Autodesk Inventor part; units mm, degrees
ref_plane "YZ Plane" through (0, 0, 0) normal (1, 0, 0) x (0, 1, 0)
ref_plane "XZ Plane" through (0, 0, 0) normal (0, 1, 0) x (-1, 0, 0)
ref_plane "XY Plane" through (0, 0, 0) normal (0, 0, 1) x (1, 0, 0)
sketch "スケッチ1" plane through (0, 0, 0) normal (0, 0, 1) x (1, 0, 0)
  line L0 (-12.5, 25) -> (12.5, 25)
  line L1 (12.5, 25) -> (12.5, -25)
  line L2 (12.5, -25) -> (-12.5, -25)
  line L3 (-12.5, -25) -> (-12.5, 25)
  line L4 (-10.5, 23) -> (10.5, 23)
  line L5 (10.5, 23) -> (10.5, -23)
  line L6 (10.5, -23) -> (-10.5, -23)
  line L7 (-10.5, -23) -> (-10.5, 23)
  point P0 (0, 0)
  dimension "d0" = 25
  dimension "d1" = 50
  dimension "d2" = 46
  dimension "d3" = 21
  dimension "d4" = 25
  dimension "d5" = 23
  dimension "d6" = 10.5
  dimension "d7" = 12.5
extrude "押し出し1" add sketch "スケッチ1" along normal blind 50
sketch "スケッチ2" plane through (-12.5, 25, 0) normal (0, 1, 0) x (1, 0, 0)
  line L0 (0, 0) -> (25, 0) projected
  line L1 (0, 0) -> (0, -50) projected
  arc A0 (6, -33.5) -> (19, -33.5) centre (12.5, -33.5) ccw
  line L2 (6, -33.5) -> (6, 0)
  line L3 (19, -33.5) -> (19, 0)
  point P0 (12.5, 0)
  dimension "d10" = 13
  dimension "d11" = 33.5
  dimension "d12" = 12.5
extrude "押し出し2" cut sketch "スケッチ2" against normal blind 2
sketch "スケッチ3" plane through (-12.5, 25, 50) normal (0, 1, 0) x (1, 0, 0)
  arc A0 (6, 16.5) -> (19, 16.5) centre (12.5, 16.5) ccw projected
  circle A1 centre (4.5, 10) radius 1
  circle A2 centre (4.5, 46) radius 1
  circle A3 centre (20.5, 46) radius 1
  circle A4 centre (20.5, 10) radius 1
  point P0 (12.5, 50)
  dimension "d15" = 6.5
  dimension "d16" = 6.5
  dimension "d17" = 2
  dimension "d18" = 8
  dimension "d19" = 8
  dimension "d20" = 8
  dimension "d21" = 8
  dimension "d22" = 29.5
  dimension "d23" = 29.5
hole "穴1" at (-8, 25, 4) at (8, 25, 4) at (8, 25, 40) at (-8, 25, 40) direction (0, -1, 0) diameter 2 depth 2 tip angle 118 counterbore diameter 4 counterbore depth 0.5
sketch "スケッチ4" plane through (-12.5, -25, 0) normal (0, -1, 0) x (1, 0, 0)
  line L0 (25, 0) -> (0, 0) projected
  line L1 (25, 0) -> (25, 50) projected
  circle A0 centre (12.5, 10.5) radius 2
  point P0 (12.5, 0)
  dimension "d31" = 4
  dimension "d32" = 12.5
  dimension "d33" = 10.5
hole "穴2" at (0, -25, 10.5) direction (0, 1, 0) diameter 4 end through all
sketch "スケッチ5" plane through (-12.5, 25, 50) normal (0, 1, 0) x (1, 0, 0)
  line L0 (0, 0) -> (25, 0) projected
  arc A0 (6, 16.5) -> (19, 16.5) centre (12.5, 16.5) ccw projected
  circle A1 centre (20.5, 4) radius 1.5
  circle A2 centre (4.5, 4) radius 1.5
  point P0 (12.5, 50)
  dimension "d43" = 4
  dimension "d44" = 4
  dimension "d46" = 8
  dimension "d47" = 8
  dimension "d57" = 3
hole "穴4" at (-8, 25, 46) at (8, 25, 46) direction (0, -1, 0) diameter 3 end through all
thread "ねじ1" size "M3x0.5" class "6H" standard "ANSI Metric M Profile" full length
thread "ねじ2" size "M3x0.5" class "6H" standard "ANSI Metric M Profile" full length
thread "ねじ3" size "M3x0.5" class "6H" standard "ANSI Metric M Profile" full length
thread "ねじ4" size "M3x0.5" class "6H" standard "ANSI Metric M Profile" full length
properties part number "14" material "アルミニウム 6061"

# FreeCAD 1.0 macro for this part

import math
import FreeCAD as App
import Part
import Sketcher


def add_polygon(sketch, points):
    """Adds a closed chain of lines whose ends are joined by coincident constraints."""
    first, n = sketch.GeometryCount, len(points)
    for a, b in zip(points, points[1:] + points[:1]):
        sketch.addGeometry(Part.LineSegment(App.Vector(*a, 0), App.Vector(*b, 0)), False)
    for i in range(n):
        sketch.addConstraint(Sketcher.Constraint("Coincident", first + i, 2, first + (i + 1) % n, 1))

doc = App.newDocument("Part")
params = doc.addObject("Spreadsheet::Sheet", "Params")
for row, (alias, value) in enumerate([
    ("sketch1_width", "25 mm"),
    ("sketch1_width2", "21 mm"),
    ("sketch1_height", "50 mm"),
    ("sketch1_height2", "46 mm"),
    ("pad1_length", "50 mm"),
    ("sketch2_radius", "6.5 mm"),
    ("sketch2_height", "33.5 mm"),
    ("pocket1_length", "2 mm"),
    ("sketch3_diameter", "2 mm"),
    ("hole_diameter", "2 mm"),
    ("hole_depth", "2 mm"),
    ("hole_cbore_diameter", "4 mm"),
    ("hole_cbore_depth", "0.5 mm"),
    ("sketch4_diameter", "4 mm"),
    ("hole2_diameter", "4 mm"),
    ("sketch5_diameter", "3 mm"),
    ("hole3_diameter", "3 mm"),
], start=1):
    params.set(f"A{row}", alias)
    params.set(f"B{row}", "=" + value)
    params.setAlias(f"B{row}", alias)

body = doc.addObject("PartDesign::Body", "Body")

sketch1 = body.newObject("Sketcher::SketchObject", "Sketch")
sketch1.AttachmentSupport = (doc.getObject("XY_Plane"), [""])
sketch1.MapMode = "FlatFace"
add_polygon(sketch1, [(12, 25), (-12, 25), (-12, -25), (12, -25)])
add_polygon(sketch1, [(-10, -23), (-10, 23), (10, 23), (10, -23)])
sketch1.addConstraint(Sketcher.Constraint("Horizontal", 0))
sketch1.addConstraint(Sketcher.Constraint("Vertical", 1))
sketch1.addConstraint(Sketcher.Constraint("Horizontal", 2))
sketch1.addConstraint(Sketcher.Constraint("Vertical", 3))
sketch1.addConstraint(Sketcher.Constraint("Vertical", 4))
sketch1.addConstraint(Sketcher.Constraint("Horizontal", 5))
sketch1.addConstraint(Sketcher.Constraint("Vertical", 6))
sketch1.addConstraint(Sketcher.Constraint("Horizontal", 7))
sketch1.addConstraint(Sketcher.Constraint("Symmetric", 0, 2, 2, 2, -1, 1))
sketch1.addConstraint(Sketcher.Constraint("Symmetric", 4, 2, 6, 2, -1, 1))
sketch1.addConstraint(Sketcher.Constraint("DistanceX", 0, 2, 0, 1, 25.0))
sketch1.addConstraint(Sketcher.Constraint("DistanceX", 5, 1, 5, 2, 21.0))
sketch1.addConstraint(Sketcher.Constraint("DistanceY", 1, 2, 1, 1, 50.0))
sketch1.addConstraint(Sketcher.Constraint("DistanceY", 4, 1, 4, 2, 46.0))
sketch1.setExpression("Constraints[18]", "Params.sketch1_width")
sketch1.setExpression("Constraints[19]", "Params.sketch1_width2")
sketch1.setExpression("Constraints[20]", "Params.sketch1_height")
sketch1.setExpression("Constraints[21]", "Params.sketch1_height2")
pad1 = body.newObject("PartDesign::Pad", "Pad")
pad1.Profile = sketch1
pad1.setExpression("Length", "Params.pad1_length")

sketch2 = body.newObject("Sketcher::SketchObject", "Sketch001")
sketch2.AttachmentSupport = (doc.getObject("XZ_Plane"), [""])
sketch2.MapMode = "FlatFace"
sketch2.AttachmentOffset = App.Placement(App.Vector(0, 0, -25), App.Rotation())
sketch2.addGeometry(Part.LineSegment(App.Vector(6, 0, 0), App.Vector(-6, 0, 0)), False)
sketch2.addGeometry(Part.LineSegment(App.Vector(-6, 0, 0), App.Vector(-6, 34, 0)), False)
sketch2.addGeometry(Part.ArcOfCircle(Part.Circle(App.Vector(0, 34, 0), App.Vector(0, 0, 1), 6), math.radians(0), math.radians(180)), False)
sketch2.addGeometry(Part.LineSegment(App.Vector(6, 34, 0), App.Vector(6, 0, 0)), False)
sketch2.addConstraint(Sketcher.Constraint("Coincident", 0, 2, 1, 1))
sketch2.addConstraint(Sketcher.Constraint("Tangent", 1, 2, 2, 2))
sketch2.addConstraint(Sketcher.Constraint("Tangent", 2, 1, 3, 1))
sketch2.addConstraint(Sketcher.Constraint("Coincident", 3, 2, 0, 1))
sketch2.addConstraint(Sketcher.Constraint("Horizontal", 0))
sketch2.addConstraint(Sketcher.Constraint("Vertical", 1))
sketch2.addConstraint(Sketcher.Constraint("Vertical", 3))
sketch2.addConstraint(Sketcher.Constraint("Symmetric", 0, 2, 3, 2, -1, 1))
sketch2.addConstraint(Sketcher.Constraint("Radius", 2, 6.5))
sketch2.addConstraint(Sketcher.Constraint("DistanceY", 1, 1, 1, 2, 33.5))
sketch2.setExpression("Constraints[8]", "Params.sketch2_radius")
sketch2.setExpression("Constraints[9]", "Params.sketch2_height")
pocket1 = body.newObject("PartDesign::Pocket", "Pocket")
pocket1.Profile = sketch2
pocket1.setExpression("Length", "Params.pocket1_length")
pocket1.Reversed = True

sketch3 = body.newObject("Sketcher::SketchObject", "Sketch002")
sketch3.AttachmentSupport = (doc.getObject("XZ_Plane"), [""])
sketch3.MapMode = "FlatFace"
sketch3.AttachmentOffset = App.Placement(App.Vector(0, 0, -25), App.Rotation())
sketch3.addGeometry(Part.Circle(App.Vector(-8, 4, 0), App.Vector(0, 0, 1), 1), False)
sketch3.addGeometry(Part.Circle(App.Vector(8, 4, 0), App.Vector(0, 0, 1), 1), False)
sketch3.addGeometry(Part.Circle(App.Vector(8, 40, 0), App.Vector(0, 0, 1), 1), False)
sketch3.addGeometry(Part.Circle(App.Vector(-8, 40, 0), App.Vector(0, 0, 1), 1), False)
sketch3.addConstraint(Sketcher.Constraint("Equal", 0, 1))
sketch3.addConstraint(Sketcher.Constraint("Equal", 1, 2))
sketch3.addConstraint(Sketcher.Constraint("Equal", 2, 3))
sketch3.addConstraint(Sketcher.Constraint("Symmetric", 0, 3, 1, 3, -2))
sketch3.addConstraint(Sketcher.Constraint("Symmetric", 2, 3, 3, 3, -2))
sketch3.addConstraint(Sketcher.Constraint("Vertical", 1, 3, 2, 3))
sketch3.addConstraint(Sketcher.Constraint("Diameter", 0, 2.0))
sketch3.addConstraint(Sketcher.Constraint("DistanceX", 0, 3, -1, 1, 8.0))
sketch3.addConstraint(Sketcher.Constraint("DistanceY", -1, 1, 0, 3, 4.0))
sketch3.addConstraint(Sketcher.Constraint("DistanceY", -1, 1, 2, 3, 40.0))
sketch3.setExpression("Constraints[6]", "Params.sketch3_diameter")
doc.recompute()
hole = body.newObject("PartDesign::Hole", "Hole")
hole.Profile = sketch3
hole.ThreadType = "None"
hole.setExpression("Diameter", "Params.hole_diameter")
hole.DepthType = "Dimension"
hole.setExpression("Depth", "Params.hole_depth")
hole.DrillPoint = "Angled"
hole.DrillPointAngle = 118
hole.HoleCutType = "Counterbore"
hole.setExpression("HoleCutDiameter", "Params.hole_cbore_diameter")
hole.setExpression("HoleCutDepth", "Params.hole_cbore_depth")
hole.Reversed = True

sketch4 = body.newObject("Sketcher::SketchObject", "Sketch003")
sketch4.AttachmentSupport = (doc.getObject("XZ_Plane"), [""])
sketch4.MapMode = "FlatFace"
sketch4.AttachmentOffset = App.Placement(App.Vector(0, 0, 25), App.Rotation())
sketch4.addGeometry(Part.Circle(App.Vector(0, 10.5, 0), App.Vector(0, 0, 1), 2), False)
sketch4.addConstraint(Sketcher.Constraint("PointOnObject", 0, 3, -2))
sketch4.addConstraint(Sketcher.Constraint("Diameter", 0, 4.0))
sketch4.addConstraint(Sketcher.Constraint("DistanceY", -1, 1, 0, 3, 10.5))
sketch4.setExpression("Constraints[1]", "Params.sketch4_diameter")
doc.recompute()
hole2 = body.newObject("PartDesign::Hole", "Hole001")
hole2.Profile = sketch4
hole2.ThreadType = "None"
hole2.setExpression("Diameter", "Params.hole2_diameter")
hole2.DepthType = "ThroughAll"

sketch5 = body.newObject("Sketcher::SketchObject", "Sketch004")
sketch5.AttachmentSupport = (doc.getObject("XZ_Plane"), [""])
sketch5.MapMode = "FlatFace"
sketch5.AttachmentOffset = App.Placement(App.Vector(0, 0, -25), App.Rotation())
sketch5.addGeometry(Part.Circle(App.Vector(-8, 46, 0), App.Vector(0, 0, 1), 1.5), False)
sketch5.addGeometry(Part.Circle(App.Vector(8, 46, 0), App.Vector(0, 0, 1), 1.5), False)
sketch5.addConstraint(Sketcher.Constraint("Equal", 0, 1))
sketch5.addConstraint(Sketcher.Constraint("Symmetric", 0, 3, 1, 3, -2))
sketch5.addConstraint(Sketcher.Constraint("Diameter", 0, 3.0))
sketch5.addConstraint(Sketcher.Constraint("DistanceX", 0, 3, -1, 1, 8.0))
sketch5.addConstraint(Sketcher.Constraint("DistanceY", -1, 1, 0, 3, 46.0))
sketch5.setExpression("Constraints[2]", "Params.sketch5_diameter")
doc.recompute()
hole3 = body.newObject("PartDesign::Hole", "Hole002")
hole3.Profile = sketch5
hole3.ThreadType = "None"
hole3.setExpression("Diameter", "Params.hole3_diameter")
hole3.DepthType = "ThroughAll"
hole3.Reversed = True

doc.recompute()
